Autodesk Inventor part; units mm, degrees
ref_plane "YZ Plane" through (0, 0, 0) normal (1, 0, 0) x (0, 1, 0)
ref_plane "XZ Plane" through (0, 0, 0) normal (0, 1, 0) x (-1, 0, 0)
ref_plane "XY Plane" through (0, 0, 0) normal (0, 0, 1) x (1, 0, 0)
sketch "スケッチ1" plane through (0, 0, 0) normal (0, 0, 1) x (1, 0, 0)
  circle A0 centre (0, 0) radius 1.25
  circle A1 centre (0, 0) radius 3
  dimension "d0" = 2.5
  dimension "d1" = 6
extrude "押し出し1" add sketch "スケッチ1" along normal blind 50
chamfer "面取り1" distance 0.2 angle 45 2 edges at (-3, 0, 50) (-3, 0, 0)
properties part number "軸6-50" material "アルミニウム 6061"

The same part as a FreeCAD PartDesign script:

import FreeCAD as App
import Part
import Sketcher
from FreeCAD import Vector


def edges_at(feature, points):
    """Names of the edges that pass closest to the given points."""
    edges = feature.Shape.Edges
    near = lambda p: min(range(len(edges)), key=lambda i: edges[i].distToShape(Part.Vertex(*p))[0])
    return sorted({f"Edge{near(p) + 1}" for p in points})

doc = App.newDocument("Part")
body = doc.addObject("PartDesign::Body", "Body")

sketch1 = body.newObject("Sketcher::SketchObject", "Sketch")
sketch1.AttachmentSupport = (doc.getObject("XY_Plane"), [""])
sketch1.MapMode = "FlatFace"
sketch1.addGeometry([
    Part.Circle(Vector(0, 0, 0), Vector(0, 0, 1), 3),
    Part.Circle(Vector(0, 0, 0), Vector(0, 0, 1), 1.2),
], False)
sketch1.addConstraint([
    Sketcher.Constraint("Coincident", 0, 3, -1, 1),
    Sketcher.Constraint("Coincident", 1, 3, -1, 1),
    Sketcher.Constraint("Diameter", 0, 6.0),
    Sketcher.Constraint("Diameter", 1, 2.5),
])
pad1 = body.newObject("PartDesign::Pad", "Pad")
pad1.Profile = sketch1
pad1.Length = 50
doc.recompute()

chamfer = body.newObject("PartDesign::Chamfer", "Chamfer")
chamfer.Base = (pad1, edges_at(pad1, [(-3, 0, 50), (-3, 0, 0)]))
chamfer.Size = 0.2

doc.recompute()
